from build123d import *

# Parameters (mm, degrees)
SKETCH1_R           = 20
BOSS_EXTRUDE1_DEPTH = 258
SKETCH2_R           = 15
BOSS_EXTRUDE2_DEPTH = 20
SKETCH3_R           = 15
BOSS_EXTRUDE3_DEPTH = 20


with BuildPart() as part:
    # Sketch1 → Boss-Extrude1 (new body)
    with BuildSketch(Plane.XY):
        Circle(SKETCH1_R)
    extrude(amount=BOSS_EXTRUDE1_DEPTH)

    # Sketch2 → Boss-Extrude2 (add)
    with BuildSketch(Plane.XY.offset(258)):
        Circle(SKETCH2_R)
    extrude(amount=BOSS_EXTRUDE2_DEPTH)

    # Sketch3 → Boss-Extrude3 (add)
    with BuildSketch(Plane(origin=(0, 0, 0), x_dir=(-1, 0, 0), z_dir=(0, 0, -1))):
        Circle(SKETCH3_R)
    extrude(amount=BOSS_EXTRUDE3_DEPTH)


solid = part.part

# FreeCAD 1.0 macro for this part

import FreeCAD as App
import Part
import Sketcher

V = App.Vector

doc = App.newDocument("Part")
body = doc.addObject("PartDesign::Body", "Body")

# Sketch on XY plane
sketch1 = body.newObject("Sketcher::SketchObject", "Sketch")
sketch1.AttachmentSupport = (doc.getObject("XY_Plane"), [""])
sketch1.MapMode = "FlatFace"
sketch1.addGeometry(Part.Circle(V(0, 0, 0), V(0, 0, 1), 20), False)
sketch1.addConstraint([
    Sketcher.Constraint("Coincident", 0, 3, -1, 1),
    Sketcher.Constraint("Diameter", 0, 40.0),
])
pad1 = body.newObject("PartDesign::Pad", "Pad")
pad1.Profile = sketch1
pad1.Length = 258

# Sketch on XY plane
sketch2 = body.newObject("Sketcher::SketchObject", "Sketch001")
sketch2.AttachmentSupport = (doc.getObject("XY_Plane"), [""])
sketch2.MapMode = "FlatFace"
sketch2.AttachmentOffset = App.Placement(V(0, 0, 258), App.Rotation())
sketch2.addGeometry(Part.Circle(V(0, 0, 0), V(0, 0, 1), 15), False)
sketch2.addConstraint([
    Sketcher.Constraint("Coincident", 0, 3, -1, 1),
    Sketcher.Constraint("Diameter", 0, 30.0),
])
pad2 = body.newObject("PartDesign::Pad", "Pad001")
pad2.Profile = sketch2
pad2.Length = 20

# Sketch on XY plane
sketch3 = body.newObject("Sketcher::SketchObject", "Sketch002")
sketch3.AttachmentSupport = (doc.getObject("XY_Plane"), [""])
sketch3.MapMode = "FlatFace"
sketch3.addGeometry(Part.Circle(V(0, 0, 0), V(0, 0, 1), 15), False)
sketch3.addConstraint([
    Sketcher.Constraint("Coincident", 0, 3, -1, 1),
    Sketcher.Constraint("Diameter", 0, 30.0),
])
pad3 = body.newObject("PartDesign::Pad", "Pad002")
pad3.Profile = sketch3
pad3.Length = 20
pad3.Reversed = True

doc.recompute()
